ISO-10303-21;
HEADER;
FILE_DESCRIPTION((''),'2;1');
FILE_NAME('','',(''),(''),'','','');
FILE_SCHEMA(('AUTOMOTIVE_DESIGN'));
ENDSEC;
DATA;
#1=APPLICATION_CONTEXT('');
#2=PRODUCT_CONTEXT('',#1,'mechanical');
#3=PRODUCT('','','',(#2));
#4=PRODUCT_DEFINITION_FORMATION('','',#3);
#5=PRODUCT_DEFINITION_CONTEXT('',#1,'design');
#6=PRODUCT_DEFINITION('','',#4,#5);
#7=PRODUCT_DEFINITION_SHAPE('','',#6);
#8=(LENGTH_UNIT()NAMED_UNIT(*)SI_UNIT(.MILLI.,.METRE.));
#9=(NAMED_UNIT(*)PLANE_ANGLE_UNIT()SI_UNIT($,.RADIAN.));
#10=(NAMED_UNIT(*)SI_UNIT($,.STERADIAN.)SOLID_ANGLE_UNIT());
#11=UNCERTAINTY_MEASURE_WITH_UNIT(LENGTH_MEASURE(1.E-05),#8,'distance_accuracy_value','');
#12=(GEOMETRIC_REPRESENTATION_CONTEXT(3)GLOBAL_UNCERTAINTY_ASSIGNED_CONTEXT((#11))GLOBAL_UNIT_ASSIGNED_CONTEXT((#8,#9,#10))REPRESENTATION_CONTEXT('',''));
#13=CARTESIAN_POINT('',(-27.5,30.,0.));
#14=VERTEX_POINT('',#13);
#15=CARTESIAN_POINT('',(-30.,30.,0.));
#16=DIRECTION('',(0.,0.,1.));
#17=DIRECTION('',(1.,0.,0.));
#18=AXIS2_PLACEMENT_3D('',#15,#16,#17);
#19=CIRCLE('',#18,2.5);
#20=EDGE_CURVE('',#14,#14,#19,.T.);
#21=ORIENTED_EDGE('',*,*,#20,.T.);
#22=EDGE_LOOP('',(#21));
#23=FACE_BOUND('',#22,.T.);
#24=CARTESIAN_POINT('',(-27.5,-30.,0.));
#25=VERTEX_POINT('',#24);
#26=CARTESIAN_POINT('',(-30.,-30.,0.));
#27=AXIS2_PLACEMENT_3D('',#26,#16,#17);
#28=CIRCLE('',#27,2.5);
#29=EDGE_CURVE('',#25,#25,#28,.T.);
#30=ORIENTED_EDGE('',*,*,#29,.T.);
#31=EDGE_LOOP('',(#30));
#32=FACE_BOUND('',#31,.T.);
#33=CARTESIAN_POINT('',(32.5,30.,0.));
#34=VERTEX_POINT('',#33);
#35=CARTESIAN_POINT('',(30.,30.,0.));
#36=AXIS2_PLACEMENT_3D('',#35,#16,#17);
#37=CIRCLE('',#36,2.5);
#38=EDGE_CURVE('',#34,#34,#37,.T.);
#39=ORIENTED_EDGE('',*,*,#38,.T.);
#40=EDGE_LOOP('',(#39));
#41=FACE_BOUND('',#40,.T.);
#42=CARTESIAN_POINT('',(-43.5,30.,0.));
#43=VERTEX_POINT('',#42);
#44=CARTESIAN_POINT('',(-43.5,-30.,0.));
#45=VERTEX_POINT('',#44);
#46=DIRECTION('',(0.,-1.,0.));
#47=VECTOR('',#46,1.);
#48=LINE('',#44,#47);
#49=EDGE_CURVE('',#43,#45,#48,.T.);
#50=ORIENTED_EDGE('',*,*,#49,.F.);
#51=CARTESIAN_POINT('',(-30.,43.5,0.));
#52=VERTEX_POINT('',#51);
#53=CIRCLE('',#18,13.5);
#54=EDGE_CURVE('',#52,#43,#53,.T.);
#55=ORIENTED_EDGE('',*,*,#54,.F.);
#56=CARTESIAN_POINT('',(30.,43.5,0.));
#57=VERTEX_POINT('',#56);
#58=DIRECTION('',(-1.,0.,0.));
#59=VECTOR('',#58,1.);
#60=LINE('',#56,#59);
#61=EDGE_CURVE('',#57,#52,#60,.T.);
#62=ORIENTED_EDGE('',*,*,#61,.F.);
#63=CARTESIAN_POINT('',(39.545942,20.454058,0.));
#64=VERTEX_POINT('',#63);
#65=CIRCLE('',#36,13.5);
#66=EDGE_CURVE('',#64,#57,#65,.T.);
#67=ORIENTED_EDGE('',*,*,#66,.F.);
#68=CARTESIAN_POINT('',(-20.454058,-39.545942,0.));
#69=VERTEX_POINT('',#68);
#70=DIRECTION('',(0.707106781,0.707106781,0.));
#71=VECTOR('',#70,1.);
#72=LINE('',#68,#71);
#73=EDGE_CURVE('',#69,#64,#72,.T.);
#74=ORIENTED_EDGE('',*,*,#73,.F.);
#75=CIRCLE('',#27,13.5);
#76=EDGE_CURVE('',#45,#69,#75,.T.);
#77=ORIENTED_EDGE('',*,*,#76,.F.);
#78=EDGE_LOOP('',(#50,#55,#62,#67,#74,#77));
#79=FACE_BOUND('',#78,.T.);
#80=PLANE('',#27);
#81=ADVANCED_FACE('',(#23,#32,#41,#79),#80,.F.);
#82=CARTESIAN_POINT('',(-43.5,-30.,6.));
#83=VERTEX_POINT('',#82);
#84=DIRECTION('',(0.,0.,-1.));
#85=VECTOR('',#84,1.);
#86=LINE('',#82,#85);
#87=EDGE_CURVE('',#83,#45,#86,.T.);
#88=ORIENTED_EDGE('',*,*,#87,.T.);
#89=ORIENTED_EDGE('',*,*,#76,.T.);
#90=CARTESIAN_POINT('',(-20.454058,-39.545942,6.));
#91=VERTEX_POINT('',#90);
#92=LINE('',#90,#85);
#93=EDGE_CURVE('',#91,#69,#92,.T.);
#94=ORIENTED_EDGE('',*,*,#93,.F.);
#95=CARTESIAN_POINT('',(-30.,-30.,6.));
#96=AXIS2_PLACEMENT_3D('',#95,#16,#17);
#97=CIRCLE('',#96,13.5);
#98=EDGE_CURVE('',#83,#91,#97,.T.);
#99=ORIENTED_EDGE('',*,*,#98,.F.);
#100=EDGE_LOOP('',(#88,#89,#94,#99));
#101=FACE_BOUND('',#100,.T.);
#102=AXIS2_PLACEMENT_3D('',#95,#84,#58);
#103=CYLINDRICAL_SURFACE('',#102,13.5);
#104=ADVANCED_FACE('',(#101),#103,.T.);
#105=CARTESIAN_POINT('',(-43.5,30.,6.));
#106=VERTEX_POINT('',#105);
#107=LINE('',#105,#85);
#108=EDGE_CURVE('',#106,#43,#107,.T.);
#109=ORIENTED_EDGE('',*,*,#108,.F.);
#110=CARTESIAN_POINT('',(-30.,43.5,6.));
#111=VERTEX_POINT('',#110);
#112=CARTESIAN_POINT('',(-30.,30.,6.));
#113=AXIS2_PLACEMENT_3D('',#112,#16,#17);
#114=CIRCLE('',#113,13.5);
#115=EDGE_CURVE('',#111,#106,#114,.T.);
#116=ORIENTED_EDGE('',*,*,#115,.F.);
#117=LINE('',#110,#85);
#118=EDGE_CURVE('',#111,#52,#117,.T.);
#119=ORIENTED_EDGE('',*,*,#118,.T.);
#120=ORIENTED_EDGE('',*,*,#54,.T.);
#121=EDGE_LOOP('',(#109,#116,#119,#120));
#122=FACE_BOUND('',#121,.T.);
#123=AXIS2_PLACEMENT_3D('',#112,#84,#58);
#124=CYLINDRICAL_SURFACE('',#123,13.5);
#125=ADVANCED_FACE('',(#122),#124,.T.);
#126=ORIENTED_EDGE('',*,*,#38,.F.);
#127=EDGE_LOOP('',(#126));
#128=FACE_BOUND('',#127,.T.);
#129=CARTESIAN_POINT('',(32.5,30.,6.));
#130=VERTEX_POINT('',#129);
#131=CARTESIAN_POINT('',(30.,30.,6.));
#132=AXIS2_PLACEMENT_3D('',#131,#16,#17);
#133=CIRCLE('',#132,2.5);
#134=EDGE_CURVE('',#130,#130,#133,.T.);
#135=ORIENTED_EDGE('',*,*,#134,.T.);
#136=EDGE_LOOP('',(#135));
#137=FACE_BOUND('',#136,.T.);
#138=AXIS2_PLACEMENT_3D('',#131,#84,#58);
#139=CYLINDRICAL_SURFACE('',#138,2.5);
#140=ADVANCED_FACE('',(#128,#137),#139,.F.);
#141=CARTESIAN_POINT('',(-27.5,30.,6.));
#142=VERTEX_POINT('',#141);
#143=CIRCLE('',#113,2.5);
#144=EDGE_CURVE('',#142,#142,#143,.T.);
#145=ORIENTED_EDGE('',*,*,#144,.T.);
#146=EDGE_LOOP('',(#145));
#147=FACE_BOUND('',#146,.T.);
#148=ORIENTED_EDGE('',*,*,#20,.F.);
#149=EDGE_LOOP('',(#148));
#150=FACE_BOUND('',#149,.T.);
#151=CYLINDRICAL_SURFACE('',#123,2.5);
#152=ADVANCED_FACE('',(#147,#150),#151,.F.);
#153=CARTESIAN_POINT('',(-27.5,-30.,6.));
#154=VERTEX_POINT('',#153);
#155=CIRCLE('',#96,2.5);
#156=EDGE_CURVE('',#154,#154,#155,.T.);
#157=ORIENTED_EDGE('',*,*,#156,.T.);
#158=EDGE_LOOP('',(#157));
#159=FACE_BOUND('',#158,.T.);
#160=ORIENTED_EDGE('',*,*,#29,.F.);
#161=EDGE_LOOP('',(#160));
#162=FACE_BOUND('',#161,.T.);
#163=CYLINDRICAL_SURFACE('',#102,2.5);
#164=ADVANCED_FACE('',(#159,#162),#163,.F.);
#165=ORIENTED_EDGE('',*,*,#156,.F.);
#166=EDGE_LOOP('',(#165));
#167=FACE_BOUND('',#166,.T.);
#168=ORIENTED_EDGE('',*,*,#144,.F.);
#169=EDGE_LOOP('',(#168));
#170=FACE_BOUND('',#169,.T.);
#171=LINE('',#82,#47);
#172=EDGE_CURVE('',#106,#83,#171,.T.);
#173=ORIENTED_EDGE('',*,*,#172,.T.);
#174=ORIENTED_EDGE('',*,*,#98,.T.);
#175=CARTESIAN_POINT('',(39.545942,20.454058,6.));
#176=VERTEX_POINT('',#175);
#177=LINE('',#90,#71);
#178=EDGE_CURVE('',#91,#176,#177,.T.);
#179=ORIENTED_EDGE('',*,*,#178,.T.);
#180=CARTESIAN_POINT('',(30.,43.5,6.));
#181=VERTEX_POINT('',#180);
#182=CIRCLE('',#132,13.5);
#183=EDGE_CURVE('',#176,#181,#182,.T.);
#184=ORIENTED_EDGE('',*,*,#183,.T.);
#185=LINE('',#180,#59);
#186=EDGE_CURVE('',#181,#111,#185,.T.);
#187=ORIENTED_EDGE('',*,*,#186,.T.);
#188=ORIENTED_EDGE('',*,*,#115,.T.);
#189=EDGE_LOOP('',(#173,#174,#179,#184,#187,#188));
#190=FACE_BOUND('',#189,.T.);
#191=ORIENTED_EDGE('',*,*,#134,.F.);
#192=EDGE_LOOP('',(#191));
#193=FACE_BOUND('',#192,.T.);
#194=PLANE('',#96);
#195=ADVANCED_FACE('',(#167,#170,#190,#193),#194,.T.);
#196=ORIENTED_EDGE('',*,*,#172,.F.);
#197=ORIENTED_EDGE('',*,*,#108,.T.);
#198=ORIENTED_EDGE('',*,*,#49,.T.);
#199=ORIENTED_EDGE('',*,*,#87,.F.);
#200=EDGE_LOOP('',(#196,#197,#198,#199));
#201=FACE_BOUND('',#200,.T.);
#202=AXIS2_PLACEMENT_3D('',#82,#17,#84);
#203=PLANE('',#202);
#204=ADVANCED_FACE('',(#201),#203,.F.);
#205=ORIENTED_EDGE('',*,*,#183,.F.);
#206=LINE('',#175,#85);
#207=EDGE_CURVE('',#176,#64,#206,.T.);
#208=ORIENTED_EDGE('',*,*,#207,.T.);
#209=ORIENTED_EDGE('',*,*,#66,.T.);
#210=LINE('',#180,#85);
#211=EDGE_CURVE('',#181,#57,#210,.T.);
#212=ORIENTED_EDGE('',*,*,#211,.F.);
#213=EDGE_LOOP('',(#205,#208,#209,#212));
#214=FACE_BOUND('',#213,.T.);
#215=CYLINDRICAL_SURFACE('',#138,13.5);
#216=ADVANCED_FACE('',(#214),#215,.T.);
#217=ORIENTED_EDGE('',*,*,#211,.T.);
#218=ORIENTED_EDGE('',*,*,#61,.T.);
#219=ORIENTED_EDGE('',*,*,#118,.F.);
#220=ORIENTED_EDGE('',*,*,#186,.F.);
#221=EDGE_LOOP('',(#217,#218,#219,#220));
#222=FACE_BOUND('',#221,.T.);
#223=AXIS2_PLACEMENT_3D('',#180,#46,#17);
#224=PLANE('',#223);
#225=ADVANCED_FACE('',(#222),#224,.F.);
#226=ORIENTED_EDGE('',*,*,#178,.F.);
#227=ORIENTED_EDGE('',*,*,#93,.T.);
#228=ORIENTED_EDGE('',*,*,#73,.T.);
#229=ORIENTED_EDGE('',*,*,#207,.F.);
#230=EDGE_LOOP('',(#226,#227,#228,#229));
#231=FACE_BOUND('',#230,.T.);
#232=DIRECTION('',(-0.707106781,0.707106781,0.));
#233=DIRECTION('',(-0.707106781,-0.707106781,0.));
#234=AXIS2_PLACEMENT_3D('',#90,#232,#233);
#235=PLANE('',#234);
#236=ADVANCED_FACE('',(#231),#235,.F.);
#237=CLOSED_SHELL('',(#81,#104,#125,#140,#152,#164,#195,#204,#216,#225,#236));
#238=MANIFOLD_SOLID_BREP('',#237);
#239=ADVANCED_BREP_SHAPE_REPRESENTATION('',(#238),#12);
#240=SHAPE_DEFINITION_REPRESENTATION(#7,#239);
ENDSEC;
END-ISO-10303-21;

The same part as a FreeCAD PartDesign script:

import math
import FreeCAD as App
import Part
import Sketcher
from FreeCAD import Vector

doc = App.newDocument("Part")
body = doc.addObject("PartDesign::Body", "Body")

# Sketch on XY plane
sketch1 = doc.addObject("Sketcher::SketchObject", "Sketch")
body.addObject(sketch1)
sketch1.AttachmentSupport = (doc.XY_Plane, [""])
sketch1.MapMode = "FlatFace"
sketch1.addGeometry(Part.LineSegment(Vector(30, 43.5, 0), Vector(-30, 43.5, 0)), False)
sketch1.addGeometry(Part.ArcOfCircle(Part.Circle(Vector(-30, 30, 0), Vector(0, 0, 1), 13.5), math.radians(90), math.radians(180)), False)
sketch1.addGeometry(Part.LineSegment(Vector(-43.5, 30, 0), Vector(-43.5, -30, 0)), False)
sketch1.addGeometry(Part.ArcOfCircle(Part.Circle(Vector(-30, -30, 0), Vector(0, 0, 1), 13.5), math.radians(180), math.radians(315)), False)
sketch1.addGeometry(Part.LineSegment(Vector(-20.5, -39.5, 0), Vector(39.5, 20.5, 0)), False)
sketch1.addGeometry(Part.ArcOfCircle(Part.Circle(Vector(30, 30, 0), Vector(0, 0, 1), 13.5), math.radians(-45), math.radians(90)), False)
sketch1.addGeometry(Part.Circle(Vector(-30, -30, 0), Vector(0, 0, 1), 2.5), False)
sketch1.addGeometry(Part.Circle(Vector(-30, 30, 0), Vector(0, 0, 1), 2.5), False)
sketch1.addGeometry(Part.Circle(Vector(30, 30, 0), Vector(0, 0, 1), 2.5), False)
sketch1.addConstraint(Sketcher.Constraint("Tangent", 0, 2, 1, 1))
sketch1.addConstraint(Sketcher.Constraint("Tangent", 1, 2, 2, 1))
sketch1.addConstraint(Sketcher.Constraint("Tangent", 2, 2, 3, 1))
sketch1.addConstraint(Sketcher.Constraint("Tangent", 3, 2, 4, 1))
sketch1.addConstraint(Sketcher.Constraint("Tangent", 4, 2, 5, 1))
sketch1.addConstraint(Sketcher.Constraint("Tangent", 5, 2, 0, 1))
sketch1.addConstraint(Sketcher.Constraint("Horizontal", 0))
sketch1.addConstraint(Sketcher.Constraint("Vertical", 2))
sketch1.addConstraint(Sketcher.Constraint("Coincident", 6, 3, 3, 3))
sketch1.addConstraint(Sketcher.Constraint("Coincident", 7, 3, 1, 3))
sketch1.addConstraint(Sketcher.Constraint("Coincident", 8, 3, 5, 3))
sketch1.addConstraint(Sketcher.Constraint("Equal", 1, 3))
sketch1.addConstraint(Sketcher.Constraint("Equal", 3, 5))
sketch1.addConstraint(Sketcher.Constraint("Equal", 6, 7))
sketch1.addConstraint(Sketcher.Constraint("Equal", 7, 8))
sketch1.addConstraint(Sketcher.Constraint("Symmetric", 3, 3, 5, 3, -1, 1))
sketch1.addConstraint(Sketcher.Constraint("Equal", 0, 2))
sketch1.addConstraint(Sketcher.Constraint("Diameter", 6, 5.0))
sketch1.addConstraint(Sketcher.Constraint("Radius", 1, 13.5))
sketch1.addConstraint(Sketcher.Constraint("DistanceX", 0, 2, 0, 1, 60.0))
pad1 = doc.addObject("PartDesign::Pad", "Pad")
body.addObject(pad1)
pad1.Profile = sketch1
pad1.Length = 6

doc.recompute()
